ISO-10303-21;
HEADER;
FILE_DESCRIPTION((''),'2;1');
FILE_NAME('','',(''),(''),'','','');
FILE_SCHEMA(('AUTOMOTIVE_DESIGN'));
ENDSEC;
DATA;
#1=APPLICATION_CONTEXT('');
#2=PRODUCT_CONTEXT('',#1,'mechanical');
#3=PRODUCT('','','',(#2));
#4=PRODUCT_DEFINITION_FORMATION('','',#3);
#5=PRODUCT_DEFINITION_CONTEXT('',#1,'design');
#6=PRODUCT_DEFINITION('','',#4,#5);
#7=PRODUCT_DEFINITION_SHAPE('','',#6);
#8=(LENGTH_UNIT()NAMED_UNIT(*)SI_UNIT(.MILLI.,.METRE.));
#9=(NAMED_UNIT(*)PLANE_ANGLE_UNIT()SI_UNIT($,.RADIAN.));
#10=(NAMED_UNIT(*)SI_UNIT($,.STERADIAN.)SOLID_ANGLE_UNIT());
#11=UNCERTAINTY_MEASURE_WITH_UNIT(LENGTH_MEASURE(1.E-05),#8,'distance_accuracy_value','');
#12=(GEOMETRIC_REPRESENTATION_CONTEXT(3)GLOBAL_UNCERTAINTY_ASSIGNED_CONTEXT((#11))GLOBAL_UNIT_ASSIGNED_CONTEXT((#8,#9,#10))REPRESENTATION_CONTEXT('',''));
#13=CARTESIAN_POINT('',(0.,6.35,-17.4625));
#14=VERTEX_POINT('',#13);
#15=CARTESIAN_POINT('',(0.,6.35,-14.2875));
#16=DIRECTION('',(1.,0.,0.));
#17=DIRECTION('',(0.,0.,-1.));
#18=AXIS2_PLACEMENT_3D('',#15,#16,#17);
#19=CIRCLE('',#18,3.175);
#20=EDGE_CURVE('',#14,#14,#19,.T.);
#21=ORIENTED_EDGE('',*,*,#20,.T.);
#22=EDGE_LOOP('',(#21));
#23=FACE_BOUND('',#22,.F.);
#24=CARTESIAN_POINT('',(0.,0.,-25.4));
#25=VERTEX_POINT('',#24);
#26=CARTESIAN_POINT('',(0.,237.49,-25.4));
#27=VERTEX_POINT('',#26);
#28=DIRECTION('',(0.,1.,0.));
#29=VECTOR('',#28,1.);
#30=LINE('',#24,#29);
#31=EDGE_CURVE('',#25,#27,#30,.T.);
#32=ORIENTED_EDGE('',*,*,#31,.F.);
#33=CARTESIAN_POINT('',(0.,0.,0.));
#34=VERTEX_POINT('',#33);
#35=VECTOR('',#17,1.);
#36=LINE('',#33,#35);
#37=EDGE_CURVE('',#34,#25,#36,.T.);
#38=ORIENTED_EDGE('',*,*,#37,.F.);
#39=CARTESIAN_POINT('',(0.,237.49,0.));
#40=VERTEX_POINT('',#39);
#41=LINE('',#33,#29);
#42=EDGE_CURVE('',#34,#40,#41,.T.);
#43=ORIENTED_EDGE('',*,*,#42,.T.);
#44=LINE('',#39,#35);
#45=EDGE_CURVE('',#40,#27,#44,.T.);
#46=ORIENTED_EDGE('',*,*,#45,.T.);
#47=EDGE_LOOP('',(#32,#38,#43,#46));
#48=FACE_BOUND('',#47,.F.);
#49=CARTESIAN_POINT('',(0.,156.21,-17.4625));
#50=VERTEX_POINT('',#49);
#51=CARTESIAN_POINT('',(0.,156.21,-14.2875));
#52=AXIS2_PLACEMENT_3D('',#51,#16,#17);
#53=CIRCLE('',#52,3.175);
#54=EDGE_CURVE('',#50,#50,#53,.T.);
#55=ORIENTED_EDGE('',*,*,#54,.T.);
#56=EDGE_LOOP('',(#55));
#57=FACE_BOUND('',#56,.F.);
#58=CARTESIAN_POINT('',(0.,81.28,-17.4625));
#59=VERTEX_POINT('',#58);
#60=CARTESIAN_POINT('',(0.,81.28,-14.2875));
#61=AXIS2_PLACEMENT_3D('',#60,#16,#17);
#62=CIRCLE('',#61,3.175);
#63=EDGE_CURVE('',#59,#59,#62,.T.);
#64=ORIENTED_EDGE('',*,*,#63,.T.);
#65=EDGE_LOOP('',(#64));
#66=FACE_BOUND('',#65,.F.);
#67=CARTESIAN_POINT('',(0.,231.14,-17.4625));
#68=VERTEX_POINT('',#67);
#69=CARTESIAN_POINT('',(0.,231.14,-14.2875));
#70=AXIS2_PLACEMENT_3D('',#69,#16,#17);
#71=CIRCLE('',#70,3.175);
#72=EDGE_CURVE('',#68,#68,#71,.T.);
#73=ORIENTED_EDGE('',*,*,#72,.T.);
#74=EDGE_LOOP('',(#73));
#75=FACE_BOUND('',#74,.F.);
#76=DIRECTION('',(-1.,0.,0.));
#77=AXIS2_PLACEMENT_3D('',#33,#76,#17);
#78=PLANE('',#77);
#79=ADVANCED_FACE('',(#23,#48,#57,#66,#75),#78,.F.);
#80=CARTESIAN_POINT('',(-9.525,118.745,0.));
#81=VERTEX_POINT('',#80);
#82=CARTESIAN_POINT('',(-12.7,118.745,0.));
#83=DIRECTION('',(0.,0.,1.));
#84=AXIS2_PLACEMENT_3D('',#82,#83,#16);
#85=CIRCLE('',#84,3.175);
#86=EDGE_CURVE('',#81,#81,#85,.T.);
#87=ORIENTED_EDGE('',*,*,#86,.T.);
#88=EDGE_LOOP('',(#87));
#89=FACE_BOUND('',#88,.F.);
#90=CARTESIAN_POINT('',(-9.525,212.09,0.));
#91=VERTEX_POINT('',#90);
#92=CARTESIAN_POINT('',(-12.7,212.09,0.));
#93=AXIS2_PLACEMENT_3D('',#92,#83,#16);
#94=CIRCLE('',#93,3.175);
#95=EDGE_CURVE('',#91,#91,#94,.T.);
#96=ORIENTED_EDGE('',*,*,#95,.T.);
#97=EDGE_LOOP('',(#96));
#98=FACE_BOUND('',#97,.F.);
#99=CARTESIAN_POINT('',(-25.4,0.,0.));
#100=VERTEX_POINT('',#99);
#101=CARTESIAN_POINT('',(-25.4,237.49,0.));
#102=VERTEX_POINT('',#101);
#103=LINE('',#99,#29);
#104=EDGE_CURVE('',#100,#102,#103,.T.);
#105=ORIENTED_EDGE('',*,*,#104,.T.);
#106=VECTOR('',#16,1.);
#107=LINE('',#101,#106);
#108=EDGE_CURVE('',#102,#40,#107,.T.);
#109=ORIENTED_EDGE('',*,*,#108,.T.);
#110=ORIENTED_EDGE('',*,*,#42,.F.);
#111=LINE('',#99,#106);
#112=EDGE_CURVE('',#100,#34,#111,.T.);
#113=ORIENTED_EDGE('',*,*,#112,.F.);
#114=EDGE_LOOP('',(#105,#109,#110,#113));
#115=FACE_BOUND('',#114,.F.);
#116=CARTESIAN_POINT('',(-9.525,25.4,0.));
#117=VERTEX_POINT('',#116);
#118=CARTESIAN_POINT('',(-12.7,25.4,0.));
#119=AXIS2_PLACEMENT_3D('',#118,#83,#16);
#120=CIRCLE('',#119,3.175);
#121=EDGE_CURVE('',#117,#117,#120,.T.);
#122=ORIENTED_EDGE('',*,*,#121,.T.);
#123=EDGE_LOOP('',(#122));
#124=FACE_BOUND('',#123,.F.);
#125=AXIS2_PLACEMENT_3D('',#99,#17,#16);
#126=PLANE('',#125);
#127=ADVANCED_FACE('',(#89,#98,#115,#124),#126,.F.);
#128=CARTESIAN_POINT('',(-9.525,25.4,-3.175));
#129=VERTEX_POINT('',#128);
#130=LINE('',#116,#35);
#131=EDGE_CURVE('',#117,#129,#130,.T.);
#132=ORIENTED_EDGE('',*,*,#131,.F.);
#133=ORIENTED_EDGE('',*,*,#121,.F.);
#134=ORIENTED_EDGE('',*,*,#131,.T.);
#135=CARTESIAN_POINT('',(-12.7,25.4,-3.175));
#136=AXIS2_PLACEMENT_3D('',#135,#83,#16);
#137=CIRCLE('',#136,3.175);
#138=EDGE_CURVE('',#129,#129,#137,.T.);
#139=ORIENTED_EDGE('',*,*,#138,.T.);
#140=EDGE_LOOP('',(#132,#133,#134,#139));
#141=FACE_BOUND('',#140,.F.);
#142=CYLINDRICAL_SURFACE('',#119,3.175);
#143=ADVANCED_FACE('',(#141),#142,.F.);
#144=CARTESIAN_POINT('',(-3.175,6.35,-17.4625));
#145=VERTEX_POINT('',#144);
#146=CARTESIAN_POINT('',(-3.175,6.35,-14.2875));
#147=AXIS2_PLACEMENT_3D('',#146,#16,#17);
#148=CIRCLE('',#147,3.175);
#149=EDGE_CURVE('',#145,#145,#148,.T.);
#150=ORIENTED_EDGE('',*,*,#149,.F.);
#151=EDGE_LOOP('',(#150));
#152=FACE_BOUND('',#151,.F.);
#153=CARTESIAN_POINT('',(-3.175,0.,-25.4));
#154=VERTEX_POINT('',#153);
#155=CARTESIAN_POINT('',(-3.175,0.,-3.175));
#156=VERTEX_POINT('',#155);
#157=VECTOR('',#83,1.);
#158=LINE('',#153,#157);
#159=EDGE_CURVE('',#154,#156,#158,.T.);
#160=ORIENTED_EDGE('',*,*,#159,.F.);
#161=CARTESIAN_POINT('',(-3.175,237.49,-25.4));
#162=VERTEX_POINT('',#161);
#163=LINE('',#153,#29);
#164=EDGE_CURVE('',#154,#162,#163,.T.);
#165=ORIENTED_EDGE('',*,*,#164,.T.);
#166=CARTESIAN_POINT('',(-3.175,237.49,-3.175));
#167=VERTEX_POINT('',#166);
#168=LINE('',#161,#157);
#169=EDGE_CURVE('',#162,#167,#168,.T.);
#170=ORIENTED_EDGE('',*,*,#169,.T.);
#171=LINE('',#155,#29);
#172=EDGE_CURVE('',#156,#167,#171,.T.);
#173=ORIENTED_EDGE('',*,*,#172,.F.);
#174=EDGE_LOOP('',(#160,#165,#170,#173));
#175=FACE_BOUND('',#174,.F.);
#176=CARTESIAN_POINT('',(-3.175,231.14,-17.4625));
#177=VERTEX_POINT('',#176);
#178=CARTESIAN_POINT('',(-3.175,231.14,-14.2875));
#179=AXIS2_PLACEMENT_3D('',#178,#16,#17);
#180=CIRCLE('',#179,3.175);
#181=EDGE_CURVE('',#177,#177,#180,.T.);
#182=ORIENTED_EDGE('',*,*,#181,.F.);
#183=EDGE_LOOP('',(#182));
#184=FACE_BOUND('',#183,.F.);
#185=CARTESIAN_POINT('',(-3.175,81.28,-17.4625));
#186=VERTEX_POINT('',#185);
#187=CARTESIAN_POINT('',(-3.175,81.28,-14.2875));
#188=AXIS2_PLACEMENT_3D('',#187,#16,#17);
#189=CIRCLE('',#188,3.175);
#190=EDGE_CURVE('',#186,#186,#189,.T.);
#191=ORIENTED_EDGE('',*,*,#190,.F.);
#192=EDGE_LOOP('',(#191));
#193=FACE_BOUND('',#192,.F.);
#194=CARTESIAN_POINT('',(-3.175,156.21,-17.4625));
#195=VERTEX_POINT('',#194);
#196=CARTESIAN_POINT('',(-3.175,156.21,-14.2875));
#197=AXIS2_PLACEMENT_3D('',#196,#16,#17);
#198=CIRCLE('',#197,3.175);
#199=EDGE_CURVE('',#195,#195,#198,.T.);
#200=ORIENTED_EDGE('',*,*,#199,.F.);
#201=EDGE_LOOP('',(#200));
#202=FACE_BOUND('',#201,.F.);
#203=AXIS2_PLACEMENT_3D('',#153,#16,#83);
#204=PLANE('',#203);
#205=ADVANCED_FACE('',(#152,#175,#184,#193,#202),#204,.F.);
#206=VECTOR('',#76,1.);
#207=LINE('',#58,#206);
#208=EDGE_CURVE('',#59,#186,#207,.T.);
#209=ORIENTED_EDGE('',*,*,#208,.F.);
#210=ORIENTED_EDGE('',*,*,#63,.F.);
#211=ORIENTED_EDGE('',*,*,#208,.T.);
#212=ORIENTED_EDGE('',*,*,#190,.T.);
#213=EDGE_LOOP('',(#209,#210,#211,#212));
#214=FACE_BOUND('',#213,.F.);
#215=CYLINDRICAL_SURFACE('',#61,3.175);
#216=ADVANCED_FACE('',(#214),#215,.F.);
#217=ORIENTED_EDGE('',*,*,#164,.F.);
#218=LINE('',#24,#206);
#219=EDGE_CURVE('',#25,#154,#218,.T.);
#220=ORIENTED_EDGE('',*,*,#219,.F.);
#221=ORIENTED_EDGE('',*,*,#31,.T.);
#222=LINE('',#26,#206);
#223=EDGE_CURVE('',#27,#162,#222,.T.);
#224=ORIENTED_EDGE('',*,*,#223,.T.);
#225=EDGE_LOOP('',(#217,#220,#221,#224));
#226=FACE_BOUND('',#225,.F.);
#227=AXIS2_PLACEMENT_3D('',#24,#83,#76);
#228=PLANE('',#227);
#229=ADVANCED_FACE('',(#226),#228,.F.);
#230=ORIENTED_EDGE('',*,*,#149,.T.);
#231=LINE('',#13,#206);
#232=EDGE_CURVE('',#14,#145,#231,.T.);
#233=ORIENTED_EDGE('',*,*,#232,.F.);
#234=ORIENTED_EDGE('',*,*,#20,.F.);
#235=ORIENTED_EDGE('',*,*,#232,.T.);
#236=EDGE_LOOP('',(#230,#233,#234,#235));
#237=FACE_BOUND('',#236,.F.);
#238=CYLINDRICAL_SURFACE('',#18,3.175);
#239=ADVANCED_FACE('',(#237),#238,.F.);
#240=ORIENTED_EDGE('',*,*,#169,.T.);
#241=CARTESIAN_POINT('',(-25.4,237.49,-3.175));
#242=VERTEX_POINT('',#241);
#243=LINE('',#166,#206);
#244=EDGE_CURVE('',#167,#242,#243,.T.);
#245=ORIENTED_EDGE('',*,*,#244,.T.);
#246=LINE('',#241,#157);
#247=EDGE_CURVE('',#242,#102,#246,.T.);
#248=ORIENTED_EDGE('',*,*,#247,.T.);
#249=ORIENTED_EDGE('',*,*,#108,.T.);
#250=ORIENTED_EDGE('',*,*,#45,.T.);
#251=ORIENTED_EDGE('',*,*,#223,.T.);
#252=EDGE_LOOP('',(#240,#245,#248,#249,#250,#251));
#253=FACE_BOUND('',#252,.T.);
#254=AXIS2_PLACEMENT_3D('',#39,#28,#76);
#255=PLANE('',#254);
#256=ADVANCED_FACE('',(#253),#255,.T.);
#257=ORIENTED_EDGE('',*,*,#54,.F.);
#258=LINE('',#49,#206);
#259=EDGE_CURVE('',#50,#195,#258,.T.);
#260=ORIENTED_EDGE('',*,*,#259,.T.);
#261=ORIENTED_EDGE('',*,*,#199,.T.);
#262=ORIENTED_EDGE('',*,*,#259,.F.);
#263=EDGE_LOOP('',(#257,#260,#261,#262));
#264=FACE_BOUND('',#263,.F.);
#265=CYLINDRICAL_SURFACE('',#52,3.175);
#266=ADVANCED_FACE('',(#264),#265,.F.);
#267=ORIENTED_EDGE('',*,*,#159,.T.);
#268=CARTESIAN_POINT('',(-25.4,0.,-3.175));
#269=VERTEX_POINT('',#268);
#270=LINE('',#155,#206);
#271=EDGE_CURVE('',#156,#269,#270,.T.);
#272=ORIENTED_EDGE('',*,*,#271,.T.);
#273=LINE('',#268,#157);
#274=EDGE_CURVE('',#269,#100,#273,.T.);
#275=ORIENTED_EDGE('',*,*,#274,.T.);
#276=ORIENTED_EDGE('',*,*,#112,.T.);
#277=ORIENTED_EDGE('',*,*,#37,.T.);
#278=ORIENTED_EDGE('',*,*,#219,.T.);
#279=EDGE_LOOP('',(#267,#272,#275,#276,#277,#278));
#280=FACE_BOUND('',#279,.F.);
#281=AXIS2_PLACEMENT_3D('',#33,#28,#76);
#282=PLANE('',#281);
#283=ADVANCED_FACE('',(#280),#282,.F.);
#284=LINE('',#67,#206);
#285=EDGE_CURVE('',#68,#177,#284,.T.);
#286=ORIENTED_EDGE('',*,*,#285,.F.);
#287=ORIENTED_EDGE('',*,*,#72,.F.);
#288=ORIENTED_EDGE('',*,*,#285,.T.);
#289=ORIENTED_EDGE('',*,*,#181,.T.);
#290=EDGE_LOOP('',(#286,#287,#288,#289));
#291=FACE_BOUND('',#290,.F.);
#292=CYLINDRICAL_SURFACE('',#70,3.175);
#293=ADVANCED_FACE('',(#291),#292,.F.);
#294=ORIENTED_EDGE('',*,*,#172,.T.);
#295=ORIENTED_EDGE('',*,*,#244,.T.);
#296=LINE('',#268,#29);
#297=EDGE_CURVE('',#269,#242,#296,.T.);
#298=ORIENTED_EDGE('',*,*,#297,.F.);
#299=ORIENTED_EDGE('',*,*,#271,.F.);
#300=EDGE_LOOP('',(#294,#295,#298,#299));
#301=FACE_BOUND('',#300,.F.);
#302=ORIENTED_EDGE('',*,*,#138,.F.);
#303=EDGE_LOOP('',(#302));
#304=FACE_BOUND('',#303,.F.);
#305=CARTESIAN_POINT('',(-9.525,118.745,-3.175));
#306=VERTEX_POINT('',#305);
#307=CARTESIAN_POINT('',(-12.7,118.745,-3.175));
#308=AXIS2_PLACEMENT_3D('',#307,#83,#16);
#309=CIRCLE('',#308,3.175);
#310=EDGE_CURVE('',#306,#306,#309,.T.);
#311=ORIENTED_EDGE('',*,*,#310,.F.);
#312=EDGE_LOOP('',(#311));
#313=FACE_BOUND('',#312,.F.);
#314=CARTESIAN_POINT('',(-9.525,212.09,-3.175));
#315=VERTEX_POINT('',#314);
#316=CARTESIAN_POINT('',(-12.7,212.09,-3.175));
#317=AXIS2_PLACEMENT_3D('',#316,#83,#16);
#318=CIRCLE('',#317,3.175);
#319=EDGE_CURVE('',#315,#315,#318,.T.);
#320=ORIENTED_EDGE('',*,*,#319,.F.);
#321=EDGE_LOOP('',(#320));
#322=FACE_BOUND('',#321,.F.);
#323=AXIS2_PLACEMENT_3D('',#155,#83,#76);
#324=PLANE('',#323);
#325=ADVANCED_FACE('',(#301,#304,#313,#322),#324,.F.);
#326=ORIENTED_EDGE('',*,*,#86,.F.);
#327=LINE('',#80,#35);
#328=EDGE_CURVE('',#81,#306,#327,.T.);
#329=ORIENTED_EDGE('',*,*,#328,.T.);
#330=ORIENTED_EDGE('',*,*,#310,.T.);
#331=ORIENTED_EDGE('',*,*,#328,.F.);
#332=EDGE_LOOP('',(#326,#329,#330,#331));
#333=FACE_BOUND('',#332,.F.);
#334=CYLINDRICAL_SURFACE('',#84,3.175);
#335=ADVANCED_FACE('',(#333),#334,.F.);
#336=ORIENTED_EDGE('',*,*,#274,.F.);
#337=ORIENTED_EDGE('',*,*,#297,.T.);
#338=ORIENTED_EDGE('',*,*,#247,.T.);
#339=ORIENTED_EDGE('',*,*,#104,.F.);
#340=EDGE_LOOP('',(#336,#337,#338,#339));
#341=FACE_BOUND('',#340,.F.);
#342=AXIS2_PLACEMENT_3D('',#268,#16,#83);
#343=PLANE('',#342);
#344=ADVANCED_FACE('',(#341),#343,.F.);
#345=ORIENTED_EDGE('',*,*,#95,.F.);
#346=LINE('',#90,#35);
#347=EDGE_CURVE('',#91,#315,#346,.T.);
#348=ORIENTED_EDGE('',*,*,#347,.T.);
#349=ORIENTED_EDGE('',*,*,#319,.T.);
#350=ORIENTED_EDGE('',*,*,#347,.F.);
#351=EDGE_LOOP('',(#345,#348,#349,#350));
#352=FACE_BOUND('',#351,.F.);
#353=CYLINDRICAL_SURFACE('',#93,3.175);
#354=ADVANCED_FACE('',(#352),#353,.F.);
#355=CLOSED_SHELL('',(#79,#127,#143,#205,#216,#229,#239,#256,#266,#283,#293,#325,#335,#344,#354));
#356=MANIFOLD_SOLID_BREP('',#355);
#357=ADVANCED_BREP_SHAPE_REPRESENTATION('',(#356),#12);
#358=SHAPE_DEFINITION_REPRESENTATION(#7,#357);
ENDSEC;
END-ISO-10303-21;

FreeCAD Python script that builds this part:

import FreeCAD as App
import Part
import Sketcher
from FreeCAD import Vector
Q = App.Units.Quantity


def add_polygon(sketch, points):
    """Adds a closed chain of lines whose ends are joined by coincident constraints."""
    first, n = sketch.GeometryCount, len(points)
    for a, b in zip(points, points[1:] + points[:1]):
        sketch.addGeometry(Part.LineSegment(App.Vector(*a, 0), App.Vector(*b, 0)), False)
    for i in range(n):
        sketch.addConstraint(Sketcher.Constraint("Coincident", first + i, 2, first + (i + 1) % n, 1))

doc = App.newDocument("Part")
body = doc.addObject("PartDesign::Body", "Body")

sketch1 = body.newObject("Sketcher::SketchObject", "Sketch")
sketch1.AttachmentSupport = (doc.getObject("XZ_Plane"), [""])
sketch1.MapMode = "FlatFace"
add_polygon(sketch1, [(-25.4, 0), (0, 0), (0, -25.4), (-3.2, -25.4), (-3.2, -3.2), (-25.4, -3.2)])
sketch1.addConstraint([
    Sketcher.Constraint("Horizontal", 0),
    Sketcher.Constraint("Vertical", 1),
    Sketcher.Constraint("Horizontal", 2),
    Sketcher.Constraint("Vertical", 3),
    Sketcher.Constraint("Horizontal", 4),
    Sketcher.Constraint("Vertical", 5),
    Sketcher.Constraint("Coincident", 0, 2, -1, 1),
    Sketcher.Constraint("Equal", 0, 1),
    Sketcher.Constraint("Equal", 4, 3),
    Sketcher.Constraint("DistanceX", 0, 1, 0, 2, Q("1 in")),
    Sketcher.Constraint("DistanceX", 2, 2, 2, 1, Q("0.125 in")),
])
pad1 = body.newObject("PartDesign::Pad", "Pad")
pad1.Profile = sketch1
pad1.Length = Q("9.35 in")
pad1.Reversed = True

sketch2 = body.newObject("Sketcher::SketchObject", "Sketch001")
sketch2.AttachmentSupport = (doc.getObject("YZ_Plane"), [""])
sketch2.MapMode = "FlatFace"
sketch2.addGeometry([
    Part.Circle(Vector(231.1, -14.3, 0), Vector(0, 0, 1), 3.2),
    Part.Circle(Vector(6.3, -14.3, 0), Vector(0, 0, 1), 3.2),
    Part.Circle(Vector(156.2, -14.3, 0), Vector(0, 0, 1), 3.2),
    Part.Circle(Vector(81.3, -14.3, 0), Vector(0, 0, 1), 3.2),
], False)
sketch2.addConstraint([
    Sketcher.Constraint("Equal", 0, 1),
    Sketcher.Constraint("Equal", 1, 2),
    Sketcher.Constraint("Equal", 2, 3),
    Sketcher.Constraint("Horizontal", 0, 3, 1, 3),
    Sketcher.Constraint("Horizontal", 1, 3, 2, 3),
    Sketcher.Constraint("Horizontal", 2, 3, 3, 3),
    Sketcher.Constraint("Diameter", 0, Q("0.25 in")),
    Sketcher.Constraint("DistanceX", -1, 1, 1, 3, Q("0.25 in")),
    Sketcher.Constraint("DistanceX", -1, 1, 0, 3, Q("9.1 in")),
    Sketcher.Constraint("DistanceX", -1, 1, 3, 3, Q("3.2 in")),
    Sketcher.Constraint("DistanceX", 1, 3, 2, 3, Q("5.9 in")),
    Sketcher.Constraint("DistanceY", 0, 3, -1, 1, Q("0.5625 in")),
])
pocket1 = body.newObject("PartDesign::Pocket", "Pocket")
pocket1.Profile = sketch2
pocket1.Length = Q("9.35 in")

sketch3 = body.newObject("Sketcher::SketchObject", "Sketch002")
sketch3.AttachmentSupport = (doc.getObject("XY_Plane"), [""])
sketch3.MapMode = "FlatFace"
sketch3.addGeometry([
    Part.Circle(Vector(-12.7, 212.1, 0), Vector(0, 0, 1), 3.2),
    Part.Circle(Vector(-12.7, 118.7, 0), Vector(0, 0, 1), 3.2),
    Part.Circle(Vector(-12.7, 25.4, 0), Vector(0, 0, 1), 3.2),
], False)
sketch3.addConstraint([
    Sketcher.Constraint("Equal", 0, 1),
    Sketcher.Constraint("Equal", 1, 2),
    Sketcher.Constraint("Vertical", 0, 3, 1, 3),
    Sketcher.Constraint("Vertical", 1, 3, 2, 3),
    Sketcher.Constraint("Diameter", 0, Q("0.25 in")),
    Sketcher.Constraint("DistanceY", -1, 1, 2, 3, Q("1 in")),
    Sketcher.Constraint("DistanceX", 0, 3, -1, 1, Q("0.5 in")),
    Sketcher.Constraint("DistanceY", -1, 1, 0, 3, Q("8.35 in")),
    Sketcher.Constraint("DistanceY", -1, 1, 1, 3, Q("4.675 in")),
])
pocket2 = body.newObject("PartDesign::Pocket", "Pocket001")
pocket2.Profile = sketch3
pocket2.Length = Q("9.35 in")

doc.recompute()
